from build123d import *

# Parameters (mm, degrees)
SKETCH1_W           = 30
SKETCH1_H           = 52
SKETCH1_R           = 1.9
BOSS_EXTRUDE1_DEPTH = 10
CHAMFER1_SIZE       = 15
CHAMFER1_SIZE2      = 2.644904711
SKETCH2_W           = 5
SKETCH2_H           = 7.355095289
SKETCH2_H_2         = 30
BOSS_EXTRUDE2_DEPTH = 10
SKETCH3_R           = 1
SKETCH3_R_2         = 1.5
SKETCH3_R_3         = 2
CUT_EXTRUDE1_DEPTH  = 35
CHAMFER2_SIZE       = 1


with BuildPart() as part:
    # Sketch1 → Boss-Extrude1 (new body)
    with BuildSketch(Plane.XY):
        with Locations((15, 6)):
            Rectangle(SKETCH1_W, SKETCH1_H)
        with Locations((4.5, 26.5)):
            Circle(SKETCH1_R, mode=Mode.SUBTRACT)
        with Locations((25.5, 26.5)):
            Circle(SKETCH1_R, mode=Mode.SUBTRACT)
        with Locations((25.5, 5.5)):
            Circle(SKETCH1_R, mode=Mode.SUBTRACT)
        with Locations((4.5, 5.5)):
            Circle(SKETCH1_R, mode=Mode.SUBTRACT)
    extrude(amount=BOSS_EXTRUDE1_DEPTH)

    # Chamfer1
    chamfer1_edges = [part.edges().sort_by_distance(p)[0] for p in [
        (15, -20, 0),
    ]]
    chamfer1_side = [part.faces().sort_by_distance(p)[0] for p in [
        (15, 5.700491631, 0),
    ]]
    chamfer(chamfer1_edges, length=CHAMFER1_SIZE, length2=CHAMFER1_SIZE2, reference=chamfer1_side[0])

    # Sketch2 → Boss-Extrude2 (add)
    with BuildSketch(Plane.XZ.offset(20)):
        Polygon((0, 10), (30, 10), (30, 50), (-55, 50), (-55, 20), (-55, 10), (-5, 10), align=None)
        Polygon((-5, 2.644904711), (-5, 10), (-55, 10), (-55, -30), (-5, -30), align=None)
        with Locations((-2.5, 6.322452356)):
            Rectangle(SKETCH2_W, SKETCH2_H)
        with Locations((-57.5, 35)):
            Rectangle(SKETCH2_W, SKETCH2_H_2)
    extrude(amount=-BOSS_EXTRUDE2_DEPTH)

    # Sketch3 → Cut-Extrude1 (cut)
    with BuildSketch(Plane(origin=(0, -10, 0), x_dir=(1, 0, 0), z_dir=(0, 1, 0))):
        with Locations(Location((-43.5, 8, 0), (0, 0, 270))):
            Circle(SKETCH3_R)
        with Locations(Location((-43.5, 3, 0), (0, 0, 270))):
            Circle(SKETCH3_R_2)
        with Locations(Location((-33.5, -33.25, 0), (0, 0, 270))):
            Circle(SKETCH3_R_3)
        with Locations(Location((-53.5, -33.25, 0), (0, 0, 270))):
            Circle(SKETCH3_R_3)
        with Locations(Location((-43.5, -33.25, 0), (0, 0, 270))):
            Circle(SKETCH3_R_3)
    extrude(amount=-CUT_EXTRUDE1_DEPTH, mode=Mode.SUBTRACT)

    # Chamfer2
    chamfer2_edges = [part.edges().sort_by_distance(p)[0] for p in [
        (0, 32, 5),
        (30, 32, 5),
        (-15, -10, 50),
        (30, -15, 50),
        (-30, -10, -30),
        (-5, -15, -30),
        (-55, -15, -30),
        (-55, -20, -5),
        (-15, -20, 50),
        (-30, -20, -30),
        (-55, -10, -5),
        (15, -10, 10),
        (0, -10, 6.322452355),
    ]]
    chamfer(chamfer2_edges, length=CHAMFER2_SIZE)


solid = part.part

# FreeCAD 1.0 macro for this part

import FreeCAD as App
import Part
import Sketcher
from FreeCAD import Vector
Q = App.Units.Quantity


def edges_at(feature, points):
    """Names of the edges that pass closest to the given points."""
    edges = feature.Shape.Edges
    near = lambda p: min(range(len(edges)), key=lambda i: edges[i].distToShape(Part.Vertex(*p))[0])
    return sorted({f"Edge{near(p) + 1}" for p in points})


def add_polygon(sketch, points):
    """Adds a closed chain of lines whose ends are joined by coincident constraints."""
    first, n = sketch.GeometryCount, len(points)
    for a, b in zip(points, points[1:] + points[:1]):
        sketch.addGeometry(Part.LineSegment(App.Vector(*a, 0), App.Vector(*b, 0)), False)
    for i in range(n):
        sketch.addConstraint(Sketcher.Constraint("Coincident", first + i, 2, first + (i + 1) % n, 1))

doc = App.newDocument("Part")
body = doc.addObject("PartDesign::Body", "Body")

# Sketch on XY plane
sketch1 = body.newObject("Sketcher::SketchObject", "Sketch")
sketch1.AttachmentSupport = (doc.getObject("XY_Plane"), [""])
sketch1.MapMode = "FlatFace"
add_polygon(sketch1, [(0, 32), (0, -20), (30, -20), (30, 32)])  # lines 0-3
sketch1.addGeometry(Part.Circle(Vector(4.5, 5.5, 0), Vector(0, 0, 1), 1.9), False)  # 4
sketch1.addGeometry(Part.Circle(Vector(25.5, 5.5, 0), Vector(0, 0, 1), 1.9), False)  # 5
sketch1.addGeometry(Part.Circle(Vector(4.5, 26.5, 0), Vector(0, 0, 1), 1.9), False)  # 6
sketch1.addGeometry(Part.Circle(Vector(25.5, 26.5, 0), Vector(0, 0, 1), 1.9), False)  # 7
sketch1.addConstraint(Sketcher.Constraint("Vertical", 0))
sketch1.addConstraint(Sketcher.Constraint("Horizontal", 1))
sketch1.addConstraint(Sketcher.Constraint("Vertical", 2))
sketch1.addConstraint(Sketcher.Constraint("Horizontal", 3))
sketch1.addConstraint(Sketcher.Constraint("Equal", 4, 5))
sketch1.addConstraint(Sketcher.Constraint("Equal", 5, 6))
sketch1.addConstraint(Sketcher.Constraint("Equal", 6, 7))
sketch1.addConstraint(Sketcher.Constraint("PointOnObject", 0, 2, -2))
sketch1.addConstraint(Sketcher.Constraint("Horizontal", 4, 3, 5, 3))
sketch1.addConstraint(Sketcher.Constraint("Horizontal", 6, 3, 7, 3))
sketch1.addConstraint(Sketcher.Constraint("Vertical", 4, 3, 6, 3))
sketch1.addConstraint(Sketcher.Constraint("Vertical", 5, 3, 7, 3))
sketch1.addConstraint(Sketcher.Constraint("Diameter", 4, Q("3.8 mm")))
sketch1.addConstraint(Sketcher.Constraint("DistanceX", 1, 1, 1, 2, Q("30 mm")))
sketch1.addConstraint(Sketcher.Constraint("DistanceY", 0, 2, 0, 1, Q("52 mm")))
sketch1.addConstraint(Sketcher.Constraint("DistanceY", 0, 2, -1, 1, Q("20 mm")))
sketch1.addConstraint(Sketcher.Constraint("DistanceX", 4, 3, 5, 3, Q("21 mm")))
sketch1.addConstraint(Sketcher.Constraint("DistanceY", 4, 3, 6, 3, Q("21 mm")))
sketch1.addConstraint(Sketcher.Constraint("DistanceX", -1, 1, 4, 3, Q("4.5 mm")))
sketch1.addConstraint(Sketcher.Constraint("DistanceY", -1, 1, 4, 3, Q("5.5 mm")))
pad1 = body.newObject("PartDesign::Pad", "Pad")
pad1.Profile = sketch1
pad1.Length = 10
doc.recompute()

chamfer = body.newObject("PartDesign::Chamfer", "Chamfer")
chamfer.Base = (pad1, edges_at(pad1, [(15, -20, 0)]))
chamfer.ChamferType = "Two distances"
chamfer.Size = 15
chamfer.Size2 = 2.644905
chamfer.FlipDirection = True

# Sketch on XZ plane
sketch2 = body.newObject("Sketcher::SketchObject", "Sketch001")
sketch2.AttachmentSupport = (doc.getObject("XZ_Plane"), [""])
sketch2.MapMode = "FlatFace"
sketch2.AttachmentOffset = App.Placement(Vector(0, 0, 20), App.Rotation())
add_polygon(sketch2, [(30, 10), (30, 50), (-60, 50), (-60, 20), (-55, 20), (-55, -30), (-5, -30), (-5, 3), (0, 3), (0, 10)])  # lines 0-9
sketch2.addConstraint(Sketcher.Constraint("Vertical", 0))
sketch2.addConstraint(Sketcher.Constraint("Horizontal", 1))
sketch2.addConstraint(Sketcher.Constraint("Vertical", 2))
sketch2.addConstraint(Sketcher.Constraint("Horizontal", 3))
sketch2.addConstraint(Sketcher.Constraint("Vertical", 4))
sketch2.addConstraint(Sketcher.Constraint("Horizontal", 5))
sketch2.addConstraint(Sketcher.Constraint("Vertical", 6))
sketch2.addConstraint(Sketcher.Constraint("Horizontal", 7))
sketch2.addConstraint(Sketcher.Constraint("Vertical", 8))
sketch2.addConstraint(Sketcher.Constraint("Horizontal", 9))
sketch2.addConstraint(Sketcher.Constraint("PointOnObject", 7, 2, -2))
sketch2.addConstraint(Sketcher.Constraint("Equal", 3, 7))
sketch2.addConstraint(Sketcher.Constraint("Equal", 9, 2))
sketch2.addConstraint(Sketcher.Constraint("Equal", 5, 4))
sketch2.addConstraint(Sketcher.Constraint("DistanceX", 1, 2, 1, 1, Q("90 mm")))
sketch2.addConstraint(Sketcher.Constraint("DistanceX", 3, 1, 3, 2, Q("5 mm")))
sketch2.addConstraint(Sketcher.Constraint("DistanceX", 5, 1, 5, 2, Q("50 mm")))
sketch2.addConstraint(Sketcher.Constraint("DistanceY", 0, 1, 0, 2, Q("40 mm")))
sketch2.addConstraint(Sketcher.Constraint("DistanceY", -1, 1, 0, 2, Q("50 mm")))
sketch2.addConstraint(Sketcher.Constraint("DistanceY", 6, 1, 6, 2, Q("32.644905 mm")))
pad2 = body.newObject("PartDesign::Pad", "Pad001")
pad2.Profile = sketch2
pad2.Length = 10
pad2.Reversed = True

# Sketch on XZ plane
sketch3 = body.newObject("Sketcher::SketchObject", "Sketch002")
sketch3.AttachmentSupport = (doc.getObject("XZ_Plane"), [""])
sketch3.MapMode = "FlatFace"
sketch3.AttachmentOffset = App.Placement(Vector(0, 0, 10), App.Rotation())
sketch3.addGeometry(Part.Circle(Vector(-43.5, -8, 0), Vector(0, 0, 1), 1), False)
sketch3.addGeometry(Part.Circle(Vector(-43.5, -3, 0), Vector(0, 0, 1), 1.5), False)
sketch3.addGeometry(Part.Circle(Vector(-33.5, 33.2, 0), Vector(0, 0, 1), 2), False)
sketch3.addGeometry(Part.Circle(Vector(-53.5, 33.2, 0), Vector(0, 0, 1), 2), False)
sketch3.addGeometry(Part.Circle(Vector(-43.5, 33.2, 0), Vector(0, 0, 1), 2), False)
sketch3.addConstraint(Sketcher.Constraint("Equal", 2, 3))
sketch3.addConstraint(Sketcher.Constraint("Equal", 3, 4))
sketch3.addConstraint(Sketcher.Constraint("Horizontal", 2, 3, 3, 3))
sketch3.addConstraint(Sketcher.Constraint("Horizontal", 3, 3, 4, 3))
sketch3.addConstraint(Sketcher.Constraint("Vertical", 0, 3, 1, 3))
sketch3.addConstraint(Sketcher.Constraint("Vertical", 1, 3, 4, 3))
sketch3.addConstraint(Sketcher.Constraint("Diameter", 0, Q("2 mm")))
sketch3.addConstraint(Sketcher.Constraint("Diameter", 1, Q("3 mm")))
sketch3.addConstraint(Sketcher.Constraint("Diameter", 2, Q("4 mm")))
sketch3.addConstraint(Sketcher.Constraint("DistanceY", 0, 3, -1, 1, Q("8 mm")))
sketch3.addConstraint(Sketcher.Constraint("DistanceY", 1, 3, -1, 1, Q("3 mm")))
sketch3.addConstraint(Sketcher.Constraint("DistanceX", 1, 3, 2, 3, Q("10 mm")))
sketch3.addConstraint(Sketcher.Constraint("DistanceX", 3, 3, 2, 3, Q("20 mm")))
sketch3.addConstraint(Sketcher.Constraint("DistanceX", 0, 3, -1, 1, Q("43.5 mm")))
sketch3.addConstraint(Sketcher.Constraint("DistanceY", -1, 1, 2, 3, Q("33.25 mm")))
pocket1 = body.newObject("PartDesign::Pocket", "Pocket")
pocket1.Profile = sketch3
pocket1.Length = 35
pocket1.Reversed = True
doc.recompute()

chamfer2 = body.newObject("PartDesign::Chamfer", "Chamfer001")
chamfer2.Base = (pocket1, edges_at(pocket1, [
    (0, 32, 5),
    (30, 32, 5),
    (-15, -10, 50),
    (30, -15, 50),
    (-30, -10, -30),
    (-5, -15, -30),
    (-55, -15, -30),
    (-55, -20, -5),
    (-15, -20, 50),
    (-30, -20, -30),
    (-55, -10, -5),
    (15, -10, 10),
    (0, -10, 6.322),
]))
chamfer2.Size = 1

doc.recompute()
